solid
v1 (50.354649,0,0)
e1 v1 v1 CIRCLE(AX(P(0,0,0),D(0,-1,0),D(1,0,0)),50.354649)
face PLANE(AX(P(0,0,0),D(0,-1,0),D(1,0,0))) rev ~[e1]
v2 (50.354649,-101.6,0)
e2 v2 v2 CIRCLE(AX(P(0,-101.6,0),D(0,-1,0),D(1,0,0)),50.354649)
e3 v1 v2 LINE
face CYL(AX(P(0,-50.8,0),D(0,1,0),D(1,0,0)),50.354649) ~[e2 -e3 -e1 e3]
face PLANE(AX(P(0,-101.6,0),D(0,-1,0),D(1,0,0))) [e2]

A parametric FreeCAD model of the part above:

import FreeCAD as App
import Part
import Sketcher
Q = App.Units.Quantity

doc = App.newDocument("Part")
params = doc.addObject("Spreadsheet::Sheet", "Params")
for row, (alias, value) in enumerate([
    ("pad1_length", "2 in"),
    ("pad2_length", "1 in"),
    ("pad3_length", "1 in"),
    ("pad4_length", "2 in"),
], start=1):
    params.set(f"A{row}", alias)
    params.set(f"B{row}", "=" + value)
    params.setAlias(f"B{row}", alias)

body = doc.addObject("PartDesign::Body", "Body")

sketch1 = doc.addObject("Sketcher::SketchObject", "Sketch")
body.addObject(sketch1)
sketch1.AttachmentSupport = (doc.XZ_Plane, [""])
sketch1.MapMode = "FlatFace"
sketch1.addGeometry(Part.Circle(App.Vector(0, 0, 0), App.Vector(0, 0, 1), 50), False)
sketch1.addConstraint([
    Sketcher.Constraint("Coincident", 0, 3, -1, 1),
    Sketcher.Constraint("Diameter", 0, Q("100.709298 mm")),
])
pad1 = doc.addObject("PartDesign::Pad", "Pad")
body.addObject(pad1)
pad1.Profile = sketch1
pad1.setExpression("Length", "Params.pad1_length")

sketch2 = doc.addObject("Sketcher::SketchObject", "Sketch001")
body.addObject(sketch2)
sketch2.AttachmentSupport = (doc.XZ_Plane, [""])
sketch2.MapMode = "FlatFace"
sketch2.addGeometry([
    Part.LineSegment(App.Vector(-25, 43, 0), App.Vector(-50, 0, 0)),
    Part.LineSegment(App.Vector(-50, 0, 0), App.Vector(-25, -43, 0)),
    Part.LineSegment(App.Vector(-25, -43, 0), App.Vector(25, -43, 0)),
    Part.LineSegment(App.Vector(25, -43, 0), App.Vector(50, 0, 0)),
    Part.LineSegment(App.Vector(50, 0, 0), App.Vector(25, 43, 0)),
    Part.LineSegment(App.Vector(25, 43, 0), App.Vector(-25, 43, 0)),
], False)
sketch2.addConstraint([
    Sketcher.Constraint("Coincident", 0, 2, 1, 1),
    Sketcher.Constraint("Coincident", 1, 2, 2, 1),
    Sketcher.Constraint("Coincident", 2, 2, 3, 1),
    Sketcher.Constraint("Coincident", 3, 2, 4, 1),
    Sketcher.Constraint("Coincident", 4, 2, 5, 1),
    Sketcher.Constraint("Coincident", 5, 2, 0, 1),
    Sketcher.Constraint("Horizontal", 2),
    Sketcher.Constraint("Horizontal", 5),
    Sketcher.Constraint("Symmetric", 0, 2, 3, 2, -1, 1),
    Sketcher.Constraint("Symmetric", 1, 2, 4, 2, -1, 1),
    Sketcher.Constraint("PointOnObject", 0, 2, -1),
    Sketcher.Constraint("Parallel", 0, 3),
    Sketcher.Constraint("Vertical", 2, 2, 4, 2),
    Sketcher.Constraint("Angle", 0, Q("-120 deg")),
    Sketcher.Constraint("DistanceX", 2, 1, 2, 2, Q("50.1171 mm")),
    Sketcher.Constraint("Distance", 0, Q("50.117099 mm")),
])
pad2 = doc.addObject("PartDesign::Pad", "Pad001")
body.addObject(pad2)
pad2.Profile = sketch2
pad2.setExpression("Length", "Params.pad2_length")

sketch3 = doc.addObject("Sketcher::SketchObject", "Sketch002")
body.addObject(sketch3)
sketch3.AttachmentSupport = (doc.XZ_Plane, [""])
sketch3.MapMode = "FlatFace"
sketch3.addGeometry([
    Part.LineSegment(App.Vector(-25, 43, 0), App.Vector(-50, 0, 0)),
    Part.LineSegment(App.Vector(-50, 0, 0), App.Vector(-25, -43, 0)),
    Part.LineSegment(App.Vector(-25, -43, 0), App.Vector(25, -43, 0)),
    Part.LineSegment(App.Vector(25, -43, 0), App.Vector(50, 0, 0)),
    Part.LineSegment(App.Vector(50, 0, 0), App.Vector(25, 43, 0)),
    Part.LineSegment(App.Vector(25, 43, 0), App.Vector(-25, 43, 0)),
], False)
sketch3.addConstraint([
    Sketcher.Constraint("Coincident", 0, 2, 1, 1),
    Sketcher.Constraint("Coincident", 1, 2, 2, 1),
    Sketcher.Constraint("Coincident", 2, 2, 3, 1),
    Sketcher.Constraint("Coincident", 3, 2, 4, 1),
    Sketcher.Constraint("Coincident", 4, 2, 5, 1),
    Sketcher.Constraint("Coincident", 5, 2, 0, 1),
    Sketcher.Constraint("Horizontal", 2),
    Sketcher.Constraint("Horizontal", 5),
    Sketcher.Constraint("Symmetric", 0, 2, 3, 2, -1, 1),
    Sketcher.Constraint("Symmetric", 1, 2, 4, 2, -1, 1),
    Sketcher.Constraint("PointOnObject", 0, 2, -1),
    Sketcher.Constraint("Parallel", 0, 3),
    Sketcher.Constraint("Vertical", 2, 2, 4, 2),
    Sketcher.Constraint("Angle", 0, Q("-120 deg")),
    Sketcher.Constraint("DistanceX", 2, 1, 2, 2, Q("50.1171 mm")),
    Sketcher.Constraint("Distance", 0, Q("50.117099 mm")),
])
pad3 = doc.addObject("PartDesign::Pad", "Pad002")
body.addObject(pad3)
pad3.Profile = sketch3
pad3.setExpression("Length", "Params.pad3_length")

sketch4 = doc.addObject("Sketcher::SketchObject", "Sketch003")
body.addObject(sketch4)
sketch4.AttachmentSupport = (doc.XZ_Plane, [""])
sketch4.MapMode = "FlatFace"
sketch4.AttachmentOffset = App.Placement(App.Vector(0, 0, 2 * 25.4), App.Rotation())
sketch4.addGeometry(Part.Circle(App.Vector(0, 0, 0), App.Vector(0, 0, 1), 50), False)
sketch4.addConstraint([
    Sketcher.Constraint("Coincident", 0, 3, -1, 1),
    Sketcher.Constraint("Diameter", 0, Q("100.709298 mm")),
])
pad4 = doc.addObject("PartDesign::Pad", "Pad003")
body.addObject(pad4)
pad4.Profile = sketch4
pad4.setExpression("Length", "Params.pad4_length")

doc.recompute()
